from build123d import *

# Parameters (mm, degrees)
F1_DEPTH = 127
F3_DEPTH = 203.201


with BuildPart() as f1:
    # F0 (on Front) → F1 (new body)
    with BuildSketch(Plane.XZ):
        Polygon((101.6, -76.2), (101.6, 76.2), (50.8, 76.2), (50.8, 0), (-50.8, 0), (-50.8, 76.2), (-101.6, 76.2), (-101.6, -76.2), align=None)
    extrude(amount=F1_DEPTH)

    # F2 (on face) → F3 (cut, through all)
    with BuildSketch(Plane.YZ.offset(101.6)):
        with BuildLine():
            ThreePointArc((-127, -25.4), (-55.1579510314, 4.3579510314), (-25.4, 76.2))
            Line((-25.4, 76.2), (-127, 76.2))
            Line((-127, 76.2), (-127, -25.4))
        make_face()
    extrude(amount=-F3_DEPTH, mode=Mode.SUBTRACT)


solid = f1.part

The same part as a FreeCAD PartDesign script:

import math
import FreeCAD as App
import Part
import Sketcher
Q = App.Units.Quantity

doc = App.newDocument("Part")
params = doc.addObject("Spreadsheet::Sheet", "Params")
for row, (alias, value) in enumerate([
    ("sketch1_width", "2 in"),
    ("sketch1_width2", "4 in"),
    ("sketch1_height", "6 in"),
    ("pad1_length", "5 in"),
    ("sketch2_radius", "4 in"),
], start=1):
    params.set(f"A{row}", alias)
    params.set(f"B{row}", "=" + value)
    params.setAlias(f"B{row}", alias)

body = doc.addObject("PartDesign::Body", "Body")

# Sketch on XZ plane
sketch1 = body.newObject("Sketcher::SketchObject", "Sketch")
sketch1.AttachmentSupport = (doc.getObject("XZ_Plane"), [""])
sketch1.MapMode = "FlatFace"
sketch1.addGeometry([
    Part.LineSegment(App.Vector(102, -76, 0), App.Vector(102, 76, 0)),  # 0
    Part.LineSegment(App.Vector(102, 76, 0), App.Vector(51, 76, 0)),  # 1
    Part.LineSegment(App.Vector(51, 76, 0), App.Vector(51, 0, 0)),  # 2
    Part.LineSegment(App.Vector(51, 0, 0), App.Vector(-51, 0, 0)),  # 3
    Part.LineSegment(App.Vector(-51, 0, 0), App.Vector(-51, 76, 0)),  # 4
    Part.LineSegment(App.Vector(-51, 76, 0), App.Vector(-102, 76, 0)),  # 5
    Part.LineSegment(App.Vector(-102, 76, 0), App.Vector(-102, -76, 0)),  # 6
    Part.LineSegment(App.Vector(-102, -76, 0), App.Vector(102, -76, 0)),  # 7
], False)
sketch1.addConstraint([
    Sketcher.Constraint("Coincident", 0, 2, 1, 1),
    Sketcher.Constraint("Coincident", 1, 2, 2, 1),
    Sketcher.Constraint("Coincident", 2, 2, 3, 1),
    Sketcher.Constraint("Coincident", 3, 2, 4, 1),
    Sketcher.Constraint("Coincident", 4, 2, 5, 1),
    Sketcher.Constraint("Coincident", 5, 2, 6, 1),
    Sketcher.Constraint("Coincident", 6, 2, 7, 1),
    Sketcher.Constraint("Coincident", 7, 2, 0, 1),
    Sketcher.Constraint("Vertical", 0),
    Sketcher.Constraint("Horizontal", 1),
    Sketcher.Constraint("Vertical", 2),
    Sketcher.Constraint("Horizontal", 3),
    Sketcher.Constraint("Vertical", 4),
    Sketcher.Constraint("Horizontal", 5),
    Sketcher.Constraint("Vertical", 6),
    Sketcher.Constraint("Horizontal", 7),
    Sketcher.Constraint("Symmetric", 2, 2, 3, 2, -1, 1),
    Sketcher.Constraint("Symmetric", 0, 2, 6, 2, -1, 1),
    Sketcher.Constraint("Horizontal", 1, 2, 4, 2),
    Sketcher.Constraint("DistanceX", 1, 2, 1, 1, Q("2 in")),
    Sketcher.Constraint("DistanceX", 3, 2, 3, 1, Q("4 in")),
    Sketcher.Constraint("DistanceY", 0, 1, 0, 2, Q("6 in")),
])
sketch1.setExpression("Constraints[19]", "Params.sketch1_width")
sketch1.setExpression("Constraints[20]", "Params.sketch1_width2")
sketch1.setExpression("Constraints[21]", "Params.sketch1_height")
pad1 = body.newObject("PartDesign::Pad", "Pad")
pad1.Profile = sketch1
pad1.setExpression("Length", "Params.pad1_length")

# Sketch on YZ plane
sketch2 = body.newObject("Sketcher::SketchObject", "Sketch001")
sketch2.AttachmentSupport = (doc.getObject("YZ_Plane"), [""])
sketch2.MapMode = "FlatFace"
sketch2.AttachmentOffset = App.Placement(App.Vector(0, 0, 4 * 25.4), App.Rotation())
sketch2.addGeometry([
    Part.ArcOfCircle(Part.Circle(App.Vector(-127, 76, 0), App.Vector(0, 0, 1), 102), math.radians(-90), math.radians(0)),
    Part.LineSegment(App.Vector(-25, 76, 0), App.Vector(-127, 76, 0)),
    Part.LineSegment(App.Vector(-127, 76, 0), App.Vector(-127, -25, 0)),
], False)
sketch2.addConstraint([
    Sketcher.Constraint("Coincident", 0, 2, 1, 1),
    Sketcher.Constraint("Coincident", 1, 2, 2, 1),
    Sketcher.Constraint("Coincident", 2, 2, 0, 1),
    Sketcher.Constraint("Horizontal", 1),
    Sketcher.Constraint("Vertical", 2),
    Sketcher.Constraint("Coincident", 1, 2, 0, 3),
    Sketcher.Constraint("Radius", 0, Q("4 in")),
    Sketcher.Constraint("DistanceX", 0, 3, -1, 1, Q("5 in")),
    Sketcher.Constraint("DistanceY", -1, 1, 0, 3, Q("3 in")),
])
sketch2.setExpression("Constraints[6]", "Params.sketch2_radius")
pocket1 = body.newObject("PartDesign::Pocket", "Pocket")
pocket1.Profile = sketch2
pocket1.Type = "ThroughAll"

doc.recompute()
